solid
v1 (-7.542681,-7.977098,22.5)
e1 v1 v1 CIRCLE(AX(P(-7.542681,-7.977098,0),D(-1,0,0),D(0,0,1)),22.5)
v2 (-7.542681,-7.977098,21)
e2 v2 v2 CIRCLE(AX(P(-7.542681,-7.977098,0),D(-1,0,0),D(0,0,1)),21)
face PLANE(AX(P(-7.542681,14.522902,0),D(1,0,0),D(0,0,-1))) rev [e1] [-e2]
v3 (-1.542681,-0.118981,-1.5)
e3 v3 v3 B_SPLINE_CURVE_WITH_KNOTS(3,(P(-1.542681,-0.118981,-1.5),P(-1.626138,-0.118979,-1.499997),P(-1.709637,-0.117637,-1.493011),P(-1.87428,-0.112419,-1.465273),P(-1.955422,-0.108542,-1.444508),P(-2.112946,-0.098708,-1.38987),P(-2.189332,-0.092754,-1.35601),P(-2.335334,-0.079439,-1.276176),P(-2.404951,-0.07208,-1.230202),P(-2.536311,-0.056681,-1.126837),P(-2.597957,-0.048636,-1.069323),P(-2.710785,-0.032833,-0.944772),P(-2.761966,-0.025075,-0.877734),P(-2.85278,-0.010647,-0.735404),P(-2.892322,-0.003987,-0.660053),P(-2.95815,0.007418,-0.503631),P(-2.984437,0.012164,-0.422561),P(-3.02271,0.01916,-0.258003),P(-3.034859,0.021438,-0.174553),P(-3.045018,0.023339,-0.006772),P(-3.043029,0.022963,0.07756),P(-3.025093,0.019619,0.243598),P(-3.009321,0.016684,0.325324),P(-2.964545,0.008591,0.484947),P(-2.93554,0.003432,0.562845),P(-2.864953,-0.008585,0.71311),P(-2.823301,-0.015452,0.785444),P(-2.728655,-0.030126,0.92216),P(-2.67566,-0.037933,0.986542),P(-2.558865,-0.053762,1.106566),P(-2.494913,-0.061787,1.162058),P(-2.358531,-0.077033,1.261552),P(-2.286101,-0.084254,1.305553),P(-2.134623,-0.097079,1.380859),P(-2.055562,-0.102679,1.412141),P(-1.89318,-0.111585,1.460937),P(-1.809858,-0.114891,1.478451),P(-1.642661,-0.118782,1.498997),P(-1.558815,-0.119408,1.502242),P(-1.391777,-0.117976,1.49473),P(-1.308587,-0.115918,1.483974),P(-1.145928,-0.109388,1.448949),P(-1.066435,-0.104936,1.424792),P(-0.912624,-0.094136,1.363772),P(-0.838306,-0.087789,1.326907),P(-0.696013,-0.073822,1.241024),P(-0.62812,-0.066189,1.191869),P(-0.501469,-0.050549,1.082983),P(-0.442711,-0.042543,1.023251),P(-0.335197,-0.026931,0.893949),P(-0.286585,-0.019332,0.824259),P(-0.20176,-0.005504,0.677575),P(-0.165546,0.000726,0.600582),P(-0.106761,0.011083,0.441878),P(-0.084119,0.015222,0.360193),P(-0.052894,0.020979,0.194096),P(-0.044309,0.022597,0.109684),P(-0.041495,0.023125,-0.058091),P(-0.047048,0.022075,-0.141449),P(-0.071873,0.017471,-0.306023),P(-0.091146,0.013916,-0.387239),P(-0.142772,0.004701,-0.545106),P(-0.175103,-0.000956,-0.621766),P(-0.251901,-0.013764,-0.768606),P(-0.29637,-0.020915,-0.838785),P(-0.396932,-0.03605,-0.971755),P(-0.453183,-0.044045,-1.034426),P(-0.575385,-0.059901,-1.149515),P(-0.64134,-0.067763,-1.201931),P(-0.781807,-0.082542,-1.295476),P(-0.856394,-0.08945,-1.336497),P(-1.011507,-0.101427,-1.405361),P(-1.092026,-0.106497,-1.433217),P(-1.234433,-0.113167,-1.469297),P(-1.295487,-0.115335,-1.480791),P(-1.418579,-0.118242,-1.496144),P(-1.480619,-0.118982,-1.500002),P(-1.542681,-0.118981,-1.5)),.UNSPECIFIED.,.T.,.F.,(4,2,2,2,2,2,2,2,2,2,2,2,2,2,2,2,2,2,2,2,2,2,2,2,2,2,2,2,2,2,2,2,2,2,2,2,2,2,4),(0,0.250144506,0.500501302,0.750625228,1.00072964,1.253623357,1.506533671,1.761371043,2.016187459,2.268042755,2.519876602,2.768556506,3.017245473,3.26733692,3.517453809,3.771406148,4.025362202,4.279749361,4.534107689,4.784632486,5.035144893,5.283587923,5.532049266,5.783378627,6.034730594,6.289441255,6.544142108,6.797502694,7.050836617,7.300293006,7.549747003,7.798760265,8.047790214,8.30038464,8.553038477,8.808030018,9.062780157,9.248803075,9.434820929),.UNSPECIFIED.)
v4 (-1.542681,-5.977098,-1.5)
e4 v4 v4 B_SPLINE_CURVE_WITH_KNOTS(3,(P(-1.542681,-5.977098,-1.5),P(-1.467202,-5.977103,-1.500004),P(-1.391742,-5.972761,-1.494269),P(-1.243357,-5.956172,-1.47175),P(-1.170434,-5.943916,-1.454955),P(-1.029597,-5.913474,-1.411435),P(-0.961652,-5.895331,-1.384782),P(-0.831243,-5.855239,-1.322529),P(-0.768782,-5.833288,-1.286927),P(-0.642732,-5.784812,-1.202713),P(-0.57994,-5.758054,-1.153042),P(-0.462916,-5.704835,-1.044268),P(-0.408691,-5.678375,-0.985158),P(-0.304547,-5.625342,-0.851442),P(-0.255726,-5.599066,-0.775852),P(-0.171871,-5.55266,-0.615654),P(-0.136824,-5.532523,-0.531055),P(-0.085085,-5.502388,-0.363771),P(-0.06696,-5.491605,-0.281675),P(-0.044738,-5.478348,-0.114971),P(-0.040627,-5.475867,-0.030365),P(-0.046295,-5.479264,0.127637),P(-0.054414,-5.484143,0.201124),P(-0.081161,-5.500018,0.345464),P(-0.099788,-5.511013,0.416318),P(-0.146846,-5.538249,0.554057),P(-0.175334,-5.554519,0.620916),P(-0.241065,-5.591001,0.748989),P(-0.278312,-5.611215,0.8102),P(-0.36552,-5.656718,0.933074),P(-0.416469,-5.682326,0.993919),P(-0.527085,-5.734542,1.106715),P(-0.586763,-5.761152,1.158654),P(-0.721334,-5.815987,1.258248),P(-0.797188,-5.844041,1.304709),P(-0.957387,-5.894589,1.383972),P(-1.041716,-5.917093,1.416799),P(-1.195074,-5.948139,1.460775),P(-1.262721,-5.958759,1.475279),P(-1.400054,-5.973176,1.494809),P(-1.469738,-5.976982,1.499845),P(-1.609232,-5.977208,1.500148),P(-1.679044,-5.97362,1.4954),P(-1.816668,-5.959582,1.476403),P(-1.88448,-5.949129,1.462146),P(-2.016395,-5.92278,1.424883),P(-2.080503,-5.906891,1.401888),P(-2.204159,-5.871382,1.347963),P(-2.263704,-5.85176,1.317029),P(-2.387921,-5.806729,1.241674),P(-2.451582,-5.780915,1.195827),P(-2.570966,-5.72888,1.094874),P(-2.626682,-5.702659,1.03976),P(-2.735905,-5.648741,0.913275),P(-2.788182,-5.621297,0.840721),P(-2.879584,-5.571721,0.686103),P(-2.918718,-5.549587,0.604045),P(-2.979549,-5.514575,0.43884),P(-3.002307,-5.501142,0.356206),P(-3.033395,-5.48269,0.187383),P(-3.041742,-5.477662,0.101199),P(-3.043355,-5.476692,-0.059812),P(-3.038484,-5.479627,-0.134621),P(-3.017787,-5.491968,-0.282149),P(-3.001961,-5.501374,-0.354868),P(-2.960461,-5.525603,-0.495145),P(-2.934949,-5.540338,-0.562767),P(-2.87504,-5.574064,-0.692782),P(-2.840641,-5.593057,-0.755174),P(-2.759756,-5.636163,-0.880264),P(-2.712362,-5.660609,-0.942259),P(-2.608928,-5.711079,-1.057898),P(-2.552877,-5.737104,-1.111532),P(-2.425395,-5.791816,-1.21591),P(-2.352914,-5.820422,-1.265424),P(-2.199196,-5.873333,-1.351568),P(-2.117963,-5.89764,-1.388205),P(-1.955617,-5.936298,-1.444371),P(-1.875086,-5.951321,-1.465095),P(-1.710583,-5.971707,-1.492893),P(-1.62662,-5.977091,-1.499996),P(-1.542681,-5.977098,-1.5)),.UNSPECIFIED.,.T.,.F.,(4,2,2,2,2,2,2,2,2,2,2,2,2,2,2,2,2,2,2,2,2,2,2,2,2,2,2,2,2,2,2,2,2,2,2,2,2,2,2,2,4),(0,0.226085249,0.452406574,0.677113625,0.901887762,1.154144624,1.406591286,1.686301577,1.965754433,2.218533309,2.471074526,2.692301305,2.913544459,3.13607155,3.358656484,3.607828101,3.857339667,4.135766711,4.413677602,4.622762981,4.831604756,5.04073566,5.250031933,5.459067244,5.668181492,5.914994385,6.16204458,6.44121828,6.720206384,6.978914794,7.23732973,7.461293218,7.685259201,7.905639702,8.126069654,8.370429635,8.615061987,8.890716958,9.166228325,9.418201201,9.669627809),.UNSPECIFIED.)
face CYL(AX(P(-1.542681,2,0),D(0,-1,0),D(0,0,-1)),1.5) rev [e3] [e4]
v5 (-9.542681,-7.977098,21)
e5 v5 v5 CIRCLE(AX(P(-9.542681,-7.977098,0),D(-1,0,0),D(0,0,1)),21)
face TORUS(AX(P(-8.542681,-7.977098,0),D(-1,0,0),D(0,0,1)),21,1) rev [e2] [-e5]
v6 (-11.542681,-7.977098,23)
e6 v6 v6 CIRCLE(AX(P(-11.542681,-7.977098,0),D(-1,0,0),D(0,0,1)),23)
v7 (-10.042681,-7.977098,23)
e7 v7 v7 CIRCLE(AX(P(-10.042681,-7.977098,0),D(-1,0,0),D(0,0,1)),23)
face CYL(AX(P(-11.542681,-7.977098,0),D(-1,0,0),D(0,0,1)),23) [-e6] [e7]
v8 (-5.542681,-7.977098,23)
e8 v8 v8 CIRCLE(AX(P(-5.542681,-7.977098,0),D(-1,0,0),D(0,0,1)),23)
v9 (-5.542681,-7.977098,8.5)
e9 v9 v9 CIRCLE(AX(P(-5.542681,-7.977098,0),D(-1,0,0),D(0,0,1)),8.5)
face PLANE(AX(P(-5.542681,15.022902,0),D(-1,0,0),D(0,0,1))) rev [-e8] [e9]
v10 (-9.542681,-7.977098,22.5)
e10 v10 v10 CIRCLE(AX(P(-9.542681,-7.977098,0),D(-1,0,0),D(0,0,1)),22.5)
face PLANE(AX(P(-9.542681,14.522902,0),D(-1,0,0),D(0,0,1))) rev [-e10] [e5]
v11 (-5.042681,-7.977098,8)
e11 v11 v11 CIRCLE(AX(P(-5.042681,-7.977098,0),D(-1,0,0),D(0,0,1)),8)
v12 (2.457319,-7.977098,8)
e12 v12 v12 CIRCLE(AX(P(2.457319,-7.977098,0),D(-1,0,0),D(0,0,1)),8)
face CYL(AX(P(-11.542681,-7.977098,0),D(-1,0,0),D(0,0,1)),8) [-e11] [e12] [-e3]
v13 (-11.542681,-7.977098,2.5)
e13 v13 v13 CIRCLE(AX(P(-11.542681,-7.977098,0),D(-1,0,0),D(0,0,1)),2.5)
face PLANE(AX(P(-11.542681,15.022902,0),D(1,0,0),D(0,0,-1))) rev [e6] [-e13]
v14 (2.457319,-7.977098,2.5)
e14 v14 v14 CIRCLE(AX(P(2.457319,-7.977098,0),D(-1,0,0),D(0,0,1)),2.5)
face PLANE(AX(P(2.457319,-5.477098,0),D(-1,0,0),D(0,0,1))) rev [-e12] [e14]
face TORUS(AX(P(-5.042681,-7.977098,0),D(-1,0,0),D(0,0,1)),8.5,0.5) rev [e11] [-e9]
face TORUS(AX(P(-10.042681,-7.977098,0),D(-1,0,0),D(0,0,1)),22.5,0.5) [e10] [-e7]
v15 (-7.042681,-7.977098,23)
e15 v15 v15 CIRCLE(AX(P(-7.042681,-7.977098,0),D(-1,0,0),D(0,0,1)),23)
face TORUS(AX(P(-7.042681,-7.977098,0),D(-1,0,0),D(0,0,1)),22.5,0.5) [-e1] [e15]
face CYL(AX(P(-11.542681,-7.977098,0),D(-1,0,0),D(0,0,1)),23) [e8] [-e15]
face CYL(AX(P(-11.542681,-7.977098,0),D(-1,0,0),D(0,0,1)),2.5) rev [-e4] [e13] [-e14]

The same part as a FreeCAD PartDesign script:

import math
import FreeCAD as App
import Part
import Sketcher

V = App.Vector

doc = App.newDocument("Part")
body = doc.addObject("PartDesign::Body", "Body")

# Sketch on XY plane
sketch1 = doc.addObject("Sketcher::SketchObject", "Sketch")
body.addObject(sketch1)
sketch1.AttachmentSupport = (doc.XY_Plane, [""])
sketch1.MapMode = "FlatFace"
sketch1.addGeometry([
    Part.LineSegment(V(-10.04, 15.02, 0), V(-11.54, 15.02, 0)),  # 0
    Part.LineSegment(V(-11.54, 15.02, 0), V(-11.54, -5.48, 0)),  # 1
    Part.LineSegment(V(-11.54, -5.48, 0), V(2.46, -5.48, 0)),  # 2
    Part.LineSegment(V(2.46, -5.48, 0), V(2.46, 0.02, 0)),  # 3
    Part.LineSegment(V(2.46, 0.02, 0), V(-5.04, 0.02, 0)),  # 4
    Part.ArcOfCircle(Part.Circle(V(-5.04, 0.52, 0), V(0, 0, 1), 0.5), math.radians(180), math.radians(270)),  # 5
    Part.LineSegment(V(-5.54, 0.52, 0), V(-5.54, 15.02, 0)),  # 6
    Part.LineSegment(V(-5.54, 15.02, 0), V(-7.04, 15.02, 0)),  # 7
    Part.ArcOfCircle(Part.Circle(V(-7.04, 14.52, 0), V(0, 0, 1), 0.5), math.radians(90), math.radians(180)),  # 8
    Part.LineSegment(V(-7.54, 14.52, 0), V(-7.54, 13.02, 0)),  # 9
    Part.ArcOfCircle(Part.Circle(V(-8.54, 13.02, 0), V(0, 0, 1), 1), math.radians(180), math.radians(360)),  # 10
    Part.LineSegment(V(-9.54, 13.02, 0), V(-9.54, 14.52, 0)),  # 11
    Part.ArcOfCircle(Part.Circle(V(-10.04, 14.52, 0), V(0, 0, 1), 0.5), math.radians(0), math.radians(90)),  # 12
], False)
sketch1.addGeometry(Part.LineSegment(V(-11.54, -7.98, 0), V(2.46, -7.98, 0)), True)  # axis
sketch1.addConstraint([
    Sketcher.Constraint("Coincident", 0, 2, 1, 1),
    Sketcher.Constraint("Coincident", 1, 2, 2, 1),
    Sketcher.Constraint("Coincident", 2, 2, 3, 1),
    Sketcher.Constraint("Coincident", 3, 2, 4, 1),
    Sketcher.Constraint("Tangent", 4, 2, 5, 2),
    Sketcher.Constraint("Tangent", 5, 1, 6, 1),
    Sketcher.Constraint("Coincident", 6, 2, 7, 1),
    Sketcher.Constraint("Tangent", 7, 2, 8, 1),
    Sketcher.Constraint("Tangent", 8, 2, 9, 1),
    Sketcher.Constraint("Tangent", 9, 2, 10, 2),
    Sketcher.Constraint("Tangent", 10, 1, 11, 1),
    Sketcher.Constraint("Tangent", 11, 2, 12, 1),
    Sketcher.Constraint("Tangent", 12, 2, 0, 1),
    Sketcher.Constraint("Horizontal", 0),
    Sketcher.Constraint("Vertical", 1),
    Sketcher.Constraint("Horizontal", 2),
    Sketcher.Constraint("Vertical", 3),
    Sketcher.Constraint("Horizontal", 4),
    Sketcher.Constraint("Vertical", 6),
    Sketcher.Constraint("Horizontal", 7),
    Sketcher.Constraint("Vertical", 9),
    Sketcher.Constraint("Vertical", 11),
    Sketcher.Constraint("Horizontal", 13),
    Sketcher.Constraint("Equal", 5, 8),
    Sketcher.Constraint("Equal", 8, 12),
    Sketcher.Constraint("Horizontal", 8, 3, 12, 3),
    Sketcher.Constraint("Vertical", 1, 2, 13, 1),
    Sketcher.Constraint("Vertical", 3, 2, 13, 2),
    Sketcher.Constraint("Equal", 0, 7),
    Sketcher.Constraint("Equal", 7, 9),
    Sketcher.Constraint("Radius", 10, 1.0),
    Sketcher.Constraint("Radius", 5, 0.5),
    Sketcher.Constraint("DistanceX", 2, 1, 2, 2, 14.0),
    Sketcher.Constraint("DistanceX", 0, 2, 0, 1, 1.5),
    Sketcher.Constraint("DistanceY", 1, 2, 1, 1, 20.5),
    Sketcher.Constraint("DistanceY", 3, 1, 3, 2, 5.5),
    Sketcher.Constraint("DistanceY", 13, 1, 4, 2, 8.0),
    Sketcher.Constraint("DistanceX", 5, 3, -1, 1, 5.042681),
    Sketcher.Constraint("DistanceY", -1, 1, 5, 3, 0.522902),
])
revolution = doc.addObject("PartDesign::Revolution", "Revolution")
body.addObject(revolution)
revolution.Profile = sketch1
revolution.ReferenceAxis = (sketch1, ["Axis0"])
revolution.Angle = 360

# Sketch on XZ plane
sketch2 = doc.addObject("Sketcher::SketchObject", "Sketch001")
body.addObject(sketch2)
sketch2.AttachmentSupport = (doc.XZ_Plane, [""])
sketch2.MapMode = "FlatFace"
sketch2.addGeometry(Part.Circle(V(-1.5, 0, 0), V(0, 0, 1), 1.5), False)
sketch2.addConstraint([
    Sketcher.Constraint("PointOnObject", 0, 3, -1),
    Sketcher.Constraint("Diameter", 0, 3.0),
    Sketcher.Constraint("DistanceX", 0, 3, -1, 1, 1.542681),
])
pocket1 = doc.addObject("PartDesign::Pocket", "Pocket")
body.addObject(pocket1)
pocket1.Profile = sketch2
pocket1.Type = "TwoLengths"
pocket1.Length = 2
pocket1.Length2 = 8

doc.recompute()
